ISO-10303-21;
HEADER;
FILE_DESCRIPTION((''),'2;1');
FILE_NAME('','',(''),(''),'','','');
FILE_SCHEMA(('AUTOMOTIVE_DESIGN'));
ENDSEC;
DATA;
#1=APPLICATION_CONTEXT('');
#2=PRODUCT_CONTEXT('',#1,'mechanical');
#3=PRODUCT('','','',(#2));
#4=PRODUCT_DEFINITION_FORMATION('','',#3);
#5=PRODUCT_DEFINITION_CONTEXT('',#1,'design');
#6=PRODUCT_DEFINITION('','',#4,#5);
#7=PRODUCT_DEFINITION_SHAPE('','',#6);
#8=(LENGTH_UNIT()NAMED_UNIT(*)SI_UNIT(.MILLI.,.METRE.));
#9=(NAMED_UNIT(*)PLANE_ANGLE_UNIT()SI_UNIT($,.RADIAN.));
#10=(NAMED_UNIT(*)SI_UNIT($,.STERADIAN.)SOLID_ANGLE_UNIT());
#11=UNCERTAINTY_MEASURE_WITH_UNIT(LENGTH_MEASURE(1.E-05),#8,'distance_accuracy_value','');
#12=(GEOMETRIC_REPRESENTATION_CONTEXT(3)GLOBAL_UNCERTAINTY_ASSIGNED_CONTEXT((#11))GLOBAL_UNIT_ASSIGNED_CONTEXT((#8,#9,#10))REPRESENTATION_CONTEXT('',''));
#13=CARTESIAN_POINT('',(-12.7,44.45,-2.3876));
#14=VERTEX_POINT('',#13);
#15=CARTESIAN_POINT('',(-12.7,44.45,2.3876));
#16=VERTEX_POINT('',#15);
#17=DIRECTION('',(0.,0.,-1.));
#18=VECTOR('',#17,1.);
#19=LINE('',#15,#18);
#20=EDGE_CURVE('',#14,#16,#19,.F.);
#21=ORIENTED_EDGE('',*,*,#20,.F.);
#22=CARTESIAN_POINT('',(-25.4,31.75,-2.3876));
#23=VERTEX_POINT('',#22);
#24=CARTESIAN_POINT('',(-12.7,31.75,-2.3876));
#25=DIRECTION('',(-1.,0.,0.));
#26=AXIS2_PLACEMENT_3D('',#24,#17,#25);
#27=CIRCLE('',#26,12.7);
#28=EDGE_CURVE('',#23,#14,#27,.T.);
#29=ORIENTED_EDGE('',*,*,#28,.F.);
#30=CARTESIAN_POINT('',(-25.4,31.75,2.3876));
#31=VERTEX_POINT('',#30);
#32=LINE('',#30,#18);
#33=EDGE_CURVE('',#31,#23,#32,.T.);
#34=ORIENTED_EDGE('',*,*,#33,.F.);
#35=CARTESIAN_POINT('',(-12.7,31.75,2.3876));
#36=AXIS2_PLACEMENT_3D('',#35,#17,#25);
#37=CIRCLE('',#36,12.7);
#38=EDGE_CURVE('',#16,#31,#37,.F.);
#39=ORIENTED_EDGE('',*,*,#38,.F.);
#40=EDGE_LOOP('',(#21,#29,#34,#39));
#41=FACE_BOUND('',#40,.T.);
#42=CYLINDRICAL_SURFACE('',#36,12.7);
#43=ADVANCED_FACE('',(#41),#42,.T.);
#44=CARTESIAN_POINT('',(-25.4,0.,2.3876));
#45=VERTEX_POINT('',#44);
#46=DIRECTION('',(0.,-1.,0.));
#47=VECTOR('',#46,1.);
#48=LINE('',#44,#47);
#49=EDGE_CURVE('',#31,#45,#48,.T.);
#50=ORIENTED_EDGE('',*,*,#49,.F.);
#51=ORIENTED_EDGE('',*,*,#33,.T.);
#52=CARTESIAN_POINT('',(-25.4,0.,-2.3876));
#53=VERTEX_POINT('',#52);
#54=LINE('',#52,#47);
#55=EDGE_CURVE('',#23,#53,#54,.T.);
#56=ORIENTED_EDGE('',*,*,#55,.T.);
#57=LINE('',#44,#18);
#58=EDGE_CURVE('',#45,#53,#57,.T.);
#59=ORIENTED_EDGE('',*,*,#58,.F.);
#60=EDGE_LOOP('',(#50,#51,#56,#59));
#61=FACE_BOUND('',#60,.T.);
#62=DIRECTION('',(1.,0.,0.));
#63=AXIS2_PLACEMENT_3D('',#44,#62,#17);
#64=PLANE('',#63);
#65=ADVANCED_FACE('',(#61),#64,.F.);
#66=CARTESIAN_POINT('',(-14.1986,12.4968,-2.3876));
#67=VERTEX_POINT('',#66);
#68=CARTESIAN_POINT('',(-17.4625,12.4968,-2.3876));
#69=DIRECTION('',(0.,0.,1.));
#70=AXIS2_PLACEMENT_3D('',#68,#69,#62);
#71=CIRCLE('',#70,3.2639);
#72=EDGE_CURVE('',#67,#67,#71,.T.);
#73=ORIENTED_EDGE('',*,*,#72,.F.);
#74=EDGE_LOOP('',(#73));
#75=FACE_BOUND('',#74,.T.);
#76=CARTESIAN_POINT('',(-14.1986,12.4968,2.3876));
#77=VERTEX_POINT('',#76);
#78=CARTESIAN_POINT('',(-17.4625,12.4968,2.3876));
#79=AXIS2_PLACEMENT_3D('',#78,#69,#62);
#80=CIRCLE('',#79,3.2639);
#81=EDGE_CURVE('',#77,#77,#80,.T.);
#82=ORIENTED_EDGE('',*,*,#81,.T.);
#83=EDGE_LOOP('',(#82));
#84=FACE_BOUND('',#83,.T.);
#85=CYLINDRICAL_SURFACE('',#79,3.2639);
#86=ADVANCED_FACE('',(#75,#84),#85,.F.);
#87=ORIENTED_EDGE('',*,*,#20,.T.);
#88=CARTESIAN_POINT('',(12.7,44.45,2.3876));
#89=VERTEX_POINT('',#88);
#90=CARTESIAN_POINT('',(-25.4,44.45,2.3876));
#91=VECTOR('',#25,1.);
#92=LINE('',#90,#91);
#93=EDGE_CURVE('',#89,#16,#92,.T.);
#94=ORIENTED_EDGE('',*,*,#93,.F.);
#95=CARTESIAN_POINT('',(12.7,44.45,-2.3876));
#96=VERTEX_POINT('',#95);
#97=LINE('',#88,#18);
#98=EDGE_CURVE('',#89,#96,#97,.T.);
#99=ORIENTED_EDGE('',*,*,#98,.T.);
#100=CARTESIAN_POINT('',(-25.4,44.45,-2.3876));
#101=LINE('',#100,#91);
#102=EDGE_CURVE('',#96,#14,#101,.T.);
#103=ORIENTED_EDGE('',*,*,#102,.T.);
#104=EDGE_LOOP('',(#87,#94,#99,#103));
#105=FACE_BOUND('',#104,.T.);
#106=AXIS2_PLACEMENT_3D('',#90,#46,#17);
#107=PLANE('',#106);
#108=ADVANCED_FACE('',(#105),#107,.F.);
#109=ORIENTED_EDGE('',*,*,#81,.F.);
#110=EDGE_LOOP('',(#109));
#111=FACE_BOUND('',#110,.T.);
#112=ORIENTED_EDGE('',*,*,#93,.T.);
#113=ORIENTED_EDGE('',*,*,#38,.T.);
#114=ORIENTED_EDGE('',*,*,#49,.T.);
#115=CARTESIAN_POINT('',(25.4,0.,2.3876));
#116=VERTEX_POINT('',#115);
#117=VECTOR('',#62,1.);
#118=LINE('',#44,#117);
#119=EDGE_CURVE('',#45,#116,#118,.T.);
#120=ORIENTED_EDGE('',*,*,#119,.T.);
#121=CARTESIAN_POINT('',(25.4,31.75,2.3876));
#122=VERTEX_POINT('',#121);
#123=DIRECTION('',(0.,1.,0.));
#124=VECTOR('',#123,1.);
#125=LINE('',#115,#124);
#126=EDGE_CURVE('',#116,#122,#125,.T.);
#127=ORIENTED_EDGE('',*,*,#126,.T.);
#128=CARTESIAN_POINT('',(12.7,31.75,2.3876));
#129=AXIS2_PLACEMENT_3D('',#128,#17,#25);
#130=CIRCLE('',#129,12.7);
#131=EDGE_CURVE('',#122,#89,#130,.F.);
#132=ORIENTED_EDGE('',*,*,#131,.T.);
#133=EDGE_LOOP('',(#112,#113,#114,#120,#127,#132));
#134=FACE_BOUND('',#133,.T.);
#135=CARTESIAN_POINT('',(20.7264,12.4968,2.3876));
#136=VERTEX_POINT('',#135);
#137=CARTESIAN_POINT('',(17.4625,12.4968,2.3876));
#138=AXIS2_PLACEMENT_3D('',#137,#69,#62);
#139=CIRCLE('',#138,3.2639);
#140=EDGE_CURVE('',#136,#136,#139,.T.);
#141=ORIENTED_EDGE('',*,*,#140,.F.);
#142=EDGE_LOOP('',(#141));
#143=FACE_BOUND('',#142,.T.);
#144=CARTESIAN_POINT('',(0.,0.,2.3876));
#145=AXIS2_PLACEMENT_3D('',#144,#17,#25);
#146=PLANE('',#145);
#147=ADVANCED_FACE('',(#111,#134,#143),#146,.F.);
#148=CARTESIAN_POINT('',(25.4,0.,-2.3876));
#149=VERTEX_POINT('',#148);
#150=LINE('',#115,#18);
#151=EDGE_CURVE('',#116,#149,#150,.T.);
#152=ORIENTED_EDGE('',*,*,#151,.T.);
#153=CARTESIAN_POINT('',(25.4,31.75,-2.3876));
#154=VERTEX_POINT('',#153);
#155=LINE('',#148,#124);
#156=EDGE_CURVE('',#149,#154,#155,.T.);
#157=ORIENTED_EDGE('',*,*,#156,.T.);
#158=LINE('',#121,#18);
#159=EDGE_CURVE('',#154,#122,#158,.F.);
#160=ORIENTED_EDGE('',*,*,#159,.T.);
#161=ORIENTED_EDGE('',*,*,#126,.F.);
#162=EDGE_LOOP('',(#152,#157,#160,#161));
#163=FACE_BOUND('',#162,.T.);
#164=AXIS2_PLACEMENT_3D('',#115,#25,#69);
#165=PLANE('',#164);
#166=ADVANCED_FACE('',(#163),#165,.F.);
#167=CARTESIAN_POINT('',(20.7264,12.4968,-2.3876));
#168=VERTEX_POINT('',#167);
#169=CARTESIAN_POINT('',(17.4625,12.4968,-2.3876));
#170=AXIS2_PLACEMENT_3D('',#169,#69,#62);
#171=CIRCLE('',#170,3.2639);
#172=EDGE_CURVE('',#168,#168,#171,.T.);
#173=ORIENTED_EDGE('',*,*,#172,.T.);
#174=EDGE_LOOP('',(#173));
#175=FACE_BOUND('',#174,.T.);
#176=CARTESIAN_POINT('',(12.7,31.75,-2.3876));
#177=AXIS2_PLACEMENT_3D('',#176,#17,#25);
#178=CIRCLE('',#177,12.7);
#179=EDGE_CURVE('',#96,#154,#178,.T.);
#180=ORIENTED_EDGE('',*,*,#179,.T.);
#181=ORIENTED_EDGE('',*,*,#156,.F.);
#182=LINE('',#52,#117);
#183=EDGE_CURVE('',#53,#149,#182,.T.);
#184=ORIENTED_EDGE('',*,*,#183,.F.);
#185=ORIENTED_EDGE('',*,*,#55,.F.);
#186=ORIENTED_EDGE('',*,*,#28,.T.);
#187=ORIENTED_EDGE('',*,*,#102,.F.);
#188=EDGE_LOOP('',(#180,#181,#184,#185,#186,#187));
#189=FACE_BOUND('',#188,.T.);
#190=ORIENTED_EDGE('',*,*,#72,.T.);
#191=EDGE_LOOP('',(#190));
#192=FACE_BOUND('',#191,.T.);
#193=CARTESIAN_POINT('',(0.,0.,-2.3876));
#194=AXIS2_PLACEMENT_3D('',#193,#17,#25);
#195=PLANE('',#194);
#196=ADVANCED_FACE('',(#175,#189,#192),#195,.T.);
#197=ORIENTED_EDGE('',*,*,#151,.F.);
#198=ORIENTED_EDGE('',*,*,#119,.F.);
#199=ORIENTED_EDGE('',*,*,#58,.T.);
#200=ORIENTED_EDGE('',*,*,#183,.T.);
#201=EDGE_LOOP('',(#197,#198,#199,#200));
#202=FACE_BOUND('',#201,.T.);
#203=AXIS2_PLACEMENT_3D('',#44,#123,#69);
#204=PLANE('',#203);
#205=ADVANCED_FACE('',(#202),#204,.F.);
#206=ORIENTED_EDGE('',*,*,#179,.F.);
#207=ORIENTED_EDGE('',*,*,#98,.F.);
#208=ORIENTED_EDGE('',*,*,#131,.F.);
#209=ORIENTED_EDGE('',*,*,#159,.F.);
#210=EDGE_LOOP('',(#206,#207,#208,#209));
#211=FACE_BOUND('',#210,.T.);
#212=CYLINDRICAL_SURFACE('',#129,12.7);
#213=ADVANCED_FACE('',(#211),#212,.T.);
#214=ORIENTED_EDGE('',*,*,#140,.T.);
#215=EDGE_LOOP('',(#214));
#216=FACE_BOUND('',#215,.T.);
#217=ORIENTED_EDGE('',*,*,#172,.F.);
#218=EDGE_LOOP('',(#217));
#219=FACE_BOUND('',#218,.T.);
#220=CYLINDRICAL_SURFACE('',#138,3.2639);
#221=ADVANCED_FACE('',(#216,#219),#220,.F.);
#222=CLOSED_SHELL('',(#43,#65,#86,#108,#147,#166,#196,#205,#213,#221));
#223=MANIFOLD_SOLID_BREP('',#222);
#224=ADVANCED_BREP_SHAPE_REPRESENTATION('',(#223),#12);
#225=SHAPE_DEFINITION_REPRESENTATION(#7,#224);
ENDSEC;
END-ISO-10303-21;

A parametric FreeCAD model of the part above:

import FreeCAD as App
import Part
import Sketcher

V = App.Vector
Q = App.Units.Quantity


def edges_at(feature, points):
    """Names of the edges that pass closest to the given points."""
    edges = feature.Shape.Edges
    near = lambda p: min(range(len(edges)), key=lambda i: edges[i].distToShape(Part.Vertex(*p))[0])
    return sorted({f"Edge{near(p) + 1}" for p in points})

doc = App.newDocument("Part")
params = doc.addObject("Spreadsheet::Sheet", "Params")
for row, (alias, value) in enumerate([
    ("sketch1_width", "2 in"),
    ("sketch1_height", "1.75 in"),
    ("pad1_length", "0.188 in"),
    ("sketch2_diameter", "0.257 in"),
    ("hole_diameter", "0.257 in"),
    ("fillet_radius", "0.5 in"),
], start=1):
    params.set(f"A{row}", alias)
    params.set(f"B{row}", "=" + value)
    params.setAlias(f"B{row}", alias)

body = doc.addObject("PartDesign::Body", "Body")

# Sketch on XY plane
sketch1 = body.newObject("Sketcher::SketchObject", "Sketch")
sketch1.AttachmentSupport = (doc.getObject("XY_Plane"), [""])
sketch1.MapMode = "FlatFace"
sketch1.addGeometry(Part.LineSegment(V(-25, 44, 0), V(-25, 0, 0)), False)
sketch1.addGeometry(Part.LineSegment(V(-25, 0, 0), V(25, 0, 0)), False)
sketch1.addGeometry(Part.LineSegment(V(25, 0, 0), V(25, 44, 0)), False)
sketch1.addGeometry(Part.LineSegment(V(25, 44, 0), V(-25, 44, 0)), False)
sketch1.addConstraint(Sketcher.Constraint("Coincident", 0, 2, 1, 1))
sketch1.addConstraint(Sketcher.Constraint("Coincident", 1, 2, 2, 1))
sketch1.addConstraint(Sketcher.Constraint("Coincident", 2, 2, 3, 1))
sketch1.addConstraint(Sketcher.Constraint("Coincident", 3, 2, 0, 1))
sketch1.addConstraint(Sketcher.Constraint("Vertical", 0))
sketch1.addConstraint(Sketcher.Constraint("Horizontal", 1))
sketch1.addConstraint(Sketcher.Constraint("Vertical", 2))
sketch1.addConstraint(Sketcher.Constraint("Horizontal", 3))
sketch1.addConstraint(Sketcher.Constraint("Symmetric", 0, 2, 1, 2, -1, 1))
sketch1.addConstraint(Sketcher.Constraint("DistanceX", 1, 1, 1, 2, Q("2 in")))
sketch1.addConstraint(Sketcher.Constraint("DistanceY", 0, 2, 0, 1, Q("1.75 in")))
sketch1.setExpression("Constraints[9]", "Params.sketch1_width")
sketch1.setExpression("Constraints[10]", "Params.sketch1_height")
pad1 = body.newObject("PartDesign::Pad", "Pad")
pad1.Profile = sketch1
pad1.setExpression("Length", "Params.pad1_length")
pad1.Midplane = True

# Sketch on XY plane
sketch2 = body.newObject("Sketcher::SketchObject", "Sketch001")
sketch2.AttachmentSupport = (doc.getObject("XY_Plane"), [""])
sketch2.MapMode = "FlatFace"
sketch2.AttachmentOffset = App.Placement(V(0, 0, 0.094 * 25.4), App.Rotation())
sketch2.addGeometry(Part.Circle(V(-17.5, 12.5, 0), V(0, 0, 1), 3.3), False)
sketch2.addGeometry(Part.Circle(V(17.5, 12.5, 0), V(0, 0, 1), 3.3), False)
sketch2.addConstraint(Sketcher.Constraint("Equal", 0, 1))
sketch2.addConstraint(Sketcher.Constraint("Symmetric", 0, 3, 1, 3, -2))
sketch2.addConstraint(Sketcher.Constraint("Diameter", 0, Q("0.257 in")))
sketch2.addConstraint(Sketcher.Constraint("DistanceX", 0, 3, -1, 1, Q("0.6875 in")))
sketch2.addConstraint(Sketcher.Constraint("DistanceY", -1, 1, 0, 3, Q("0.492 in")))
sketch2.setExpression("Constraints[2]", "Params.sketch2_diameter")
doc.recompute()
hole = body.newObject("PartDesign::Hole", "Hole")
hole.Profile = sketch2
hole.ThreadType = "None"
hole.setExpression("Diameter", "Params.hole_diameter")
hole.DepthType = "ThroughAll"
doc.recompute()

fillet = body.newObject("PartDesign::Fillet", "Fillet")
fillet.Base = (hole, edges_at(hole, [(-25.4, 44.45, 0), (25.4, 44.45, 0)]))
fillet.setExpression("Radius", "Params.fillet_radius")

doc.recompute()
